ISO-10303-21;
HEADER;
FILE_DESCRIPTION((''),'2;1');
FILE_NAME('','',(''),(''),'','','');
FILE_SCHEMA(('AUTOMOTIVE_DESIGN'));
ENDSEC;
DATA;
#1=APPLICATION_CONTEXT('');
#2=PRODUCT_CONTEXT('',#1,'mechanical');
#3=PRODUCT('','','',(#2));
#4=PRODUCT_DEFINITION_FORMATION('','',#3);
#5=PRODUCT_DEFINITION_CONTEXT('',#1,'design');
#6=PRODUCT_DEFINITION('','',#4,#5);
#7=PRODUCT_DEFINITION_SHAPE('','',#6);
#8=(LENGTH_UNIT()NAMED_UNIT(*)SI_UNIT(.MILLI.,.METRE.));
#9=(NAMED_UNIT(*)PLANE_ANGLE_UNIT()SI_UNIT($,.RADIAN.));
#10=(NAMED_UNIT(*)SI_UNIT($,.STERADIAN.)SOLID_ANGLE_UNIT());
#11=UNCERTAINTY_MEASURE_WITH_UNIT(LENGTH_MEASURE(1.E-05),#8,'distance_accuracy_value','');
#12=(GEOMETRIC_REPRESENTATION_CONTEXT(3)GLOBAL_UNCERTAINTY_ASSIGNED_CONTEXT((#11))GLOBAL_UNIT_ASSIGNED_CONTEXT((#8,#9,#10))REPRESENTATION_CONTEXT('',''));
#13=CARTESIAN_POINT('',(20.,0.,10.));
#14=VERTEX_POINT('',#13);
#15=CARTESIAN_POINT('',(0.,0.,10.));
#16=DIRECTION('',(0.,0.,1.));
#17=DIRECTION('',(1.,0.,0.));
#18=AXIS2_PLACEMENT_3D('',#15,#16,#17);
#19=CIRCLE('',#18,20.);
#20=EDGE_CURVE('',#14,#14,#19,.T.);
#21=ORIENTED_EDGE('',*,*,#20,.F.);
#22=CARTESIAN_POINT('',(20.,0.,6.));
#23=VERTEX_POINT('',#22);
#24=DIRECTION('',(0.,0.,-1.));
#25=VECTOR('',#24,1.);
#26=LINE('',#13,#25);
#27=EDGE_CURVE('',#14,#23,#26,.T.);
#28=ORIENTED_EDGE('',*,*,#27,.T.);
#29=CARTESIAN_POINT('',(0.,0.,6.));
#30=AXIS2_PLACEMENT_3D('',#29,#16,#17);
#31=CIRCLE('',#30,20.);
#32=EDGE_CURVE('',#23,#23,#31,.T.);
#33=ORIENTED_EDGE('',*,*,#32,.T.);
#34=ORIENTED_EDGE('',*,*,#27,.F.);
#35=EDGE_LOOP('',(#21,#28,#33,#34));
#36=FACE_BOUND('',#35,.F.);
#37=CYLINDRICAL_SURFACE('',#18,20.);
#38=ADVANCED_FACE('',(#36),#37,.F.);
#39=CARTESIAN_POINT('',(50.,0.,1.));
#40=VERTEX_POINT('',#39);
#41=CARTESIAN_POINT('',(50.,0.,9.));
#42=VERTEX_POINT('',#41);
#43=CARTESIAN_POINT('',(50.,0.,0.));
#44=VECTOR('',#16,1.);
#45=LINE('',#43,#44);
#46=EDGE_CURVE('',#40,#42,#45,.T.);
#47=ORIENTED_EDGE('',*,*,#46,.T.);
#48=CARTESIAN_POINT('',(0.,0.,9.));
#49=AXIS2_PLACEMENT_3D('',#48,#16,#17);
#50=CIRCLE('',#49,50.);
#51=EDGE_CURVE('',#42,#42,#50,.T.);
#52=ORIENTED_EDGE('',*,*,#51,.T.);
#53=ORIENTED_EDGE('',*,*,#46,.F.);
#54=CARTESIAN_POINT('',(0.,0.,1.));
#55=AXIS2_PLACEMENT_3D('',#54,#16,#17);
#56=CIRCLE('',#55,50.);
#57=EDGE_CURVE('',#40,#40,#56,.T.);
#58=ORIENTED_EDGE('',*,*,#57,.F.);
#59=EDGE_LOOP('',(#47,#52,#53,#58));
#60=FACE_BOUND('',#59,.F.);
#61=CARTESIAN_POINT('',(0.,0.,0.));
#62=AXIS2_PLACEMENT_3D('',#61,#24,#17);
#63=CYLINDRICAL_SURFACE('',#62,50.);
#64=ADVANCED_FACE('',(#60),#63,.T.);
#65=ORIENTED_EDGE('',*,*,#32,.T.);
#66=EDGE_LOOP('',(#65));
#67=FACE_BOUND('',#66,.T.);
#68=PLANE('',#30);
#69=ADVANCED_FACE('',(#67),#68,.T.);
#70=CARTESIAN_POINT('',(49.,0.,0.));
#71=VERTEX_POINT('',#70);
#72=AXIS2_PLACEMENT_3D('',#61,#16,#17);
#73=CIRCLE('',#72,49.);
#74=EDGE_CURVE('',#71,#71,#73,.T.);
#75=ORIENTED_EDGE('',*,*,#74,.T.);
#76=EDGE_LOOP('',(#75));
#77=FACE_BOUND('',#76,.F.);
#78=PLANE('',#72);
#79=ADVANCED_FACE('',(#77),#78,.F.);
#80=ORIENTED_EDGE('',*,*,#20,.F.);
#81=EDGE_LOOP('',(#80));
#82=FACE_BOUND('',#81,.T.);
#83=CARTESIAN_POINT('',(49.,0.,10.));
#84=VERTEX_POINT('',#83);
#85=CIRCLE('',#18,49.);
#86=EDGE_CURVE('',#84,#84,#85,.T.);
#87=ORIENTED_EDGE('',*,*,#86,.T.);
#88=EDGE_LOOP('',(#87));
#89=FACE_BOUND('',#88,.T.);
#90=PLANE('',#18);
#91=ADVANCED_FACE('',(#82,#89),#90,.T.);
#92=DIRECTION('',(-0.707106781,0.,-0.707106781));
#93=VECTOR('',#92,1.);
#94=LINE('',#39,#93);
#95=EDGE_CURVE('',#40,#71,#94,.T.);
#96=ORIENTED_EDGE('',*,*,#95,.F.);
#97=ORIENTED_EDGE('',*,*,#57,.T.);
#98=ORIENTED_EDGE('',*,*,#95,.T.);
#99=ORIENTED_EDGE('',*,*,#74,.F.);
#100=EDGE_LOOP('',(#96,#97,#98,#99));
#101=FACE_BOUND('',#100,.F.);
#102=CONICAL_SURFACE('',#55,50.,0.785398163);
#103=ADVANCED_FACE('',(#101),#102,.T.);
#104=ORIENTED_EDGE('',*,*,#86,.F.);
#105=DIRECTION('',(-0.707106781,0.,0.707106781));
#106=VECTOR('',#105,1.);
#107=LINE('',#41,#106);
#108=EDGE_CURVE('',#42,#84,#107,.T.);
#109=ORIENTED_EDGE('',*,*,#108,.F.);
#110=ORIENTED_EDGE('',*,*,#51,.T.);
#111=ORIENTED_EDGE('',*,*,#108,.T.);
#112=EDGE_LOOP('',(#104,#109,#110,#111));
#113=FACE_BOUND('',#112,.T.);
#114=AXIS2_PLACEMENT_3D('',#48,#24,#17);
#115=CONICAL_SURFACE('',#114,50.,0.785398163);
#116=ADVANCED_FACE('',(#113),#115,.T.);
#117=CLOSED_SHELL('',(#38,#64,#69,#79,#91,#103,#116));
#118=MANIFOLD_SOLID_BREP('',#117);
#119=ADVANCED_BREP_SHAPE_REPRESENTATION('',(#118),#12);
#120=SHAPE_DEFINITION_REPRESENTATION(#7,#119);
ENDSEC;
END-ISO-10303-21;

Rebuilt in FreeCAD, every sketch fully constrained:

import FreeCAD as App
import Part
import Sketcher

V = App.Vector


def edges_at(feature, points):
    """Names of the edges that pass closest to the given points."""
    edges = feature.Shape.Edges
    near = lambda p: min(range(len(edges)), key=lambda i: edges[i].distToShape(Part.Vertex(*p))[0])
    return sorted({f"Edge{near(p) + 1}" for p in points})

doc = App.newDocument("Part")
params = doc.addObject("Spreadsheet::Sheet", "Params")
for row, (alias, value) in enumerate([
    ("sketch1_diameter", "100 mm"),
    ("pad1_length", "10 mm"),
    ("sketch2_diameter", "40 mm"),
    ("pocket1_length", "4 mm"),
    ("chamfer_size", "1 mm"),
], start=1):
    params.set(f"A{row}", alias)
    params.set(f"B{row}", "=" + value)
    params.setAlias(f"B{row}", alias)

body = doc.addObject("PartDesign::Body", "Body")

# Sketch on XY plane
sketch1 = doc.addObject("Sketcher::SketchObject", "Sketch")
body.addObject(sketch1)
sketch1.AttachmentSupport = (doc.XY_Plane, [""])
sketch1.MapMode = "FlatFace"
sketch1.addGeometry(Part.Circle(V(0, 0, 0), V(0, 0, 1), 50), False)
sketch1.addConstraint([
    Sketcher.Constraint("Coincident", 0, 3, -1, 1),
    Sketcher.Constraint("Diameter", 0, 100.0),
])
sketch1.setExpression("Constraints[1]", "Params.sketch1_diameter")
pad1 = doc.addObject("PartDesign::Pad", "Pad")
body.addObject(pad1)
pad1.Profile = sketch1
pad1.setExpression("Length", "Params.pad1_length")

# Sketch on XY plane
sketch2 = doc.addObject("Sketcher::SketchObject", "Sketch001")
body.addObject(sketch2)
sketch2.AttachmentSupport = (doc.XY_Plane, [""])
sketch2.MapMode = "FlatFace"
sketch2.AttachmentOffset = App.Placement(V(0, 0, 10), App.Rotation())
sketch2.addGeometry(Part.Circle(V(0, 0, 0), V(0, 0, 1), 20), False)
sketch2.addConstraint([
    Sketcher.Constraint("Coincident", 0, 3, -1, 1),
    Sketcher.Constraint("Diameter", 0, 40.0),
])
sketch2.setExpression("Constraints[1]", "Params.sketch2_diameter")
pocket1 = doc.addObject("PartDesign::Pocket", "Pocket")
body.addObject(pocket1)
pocket1.Profile = sketch2
pocket1.setExpression("Length", "Params.pocket1_length")
doc.recompute()

chamfer = doc.addObject("PartDesign::Chamfer", "Chamfer")
body.addObject(chamfer)
chamfer.Base = (pocket1, edges_at(pocket1, [(-50, 0, 10), (-50, 0, 0)]))
chamfer.setExpression("Size", "Params.chamfer_size")

doc.recompute()
